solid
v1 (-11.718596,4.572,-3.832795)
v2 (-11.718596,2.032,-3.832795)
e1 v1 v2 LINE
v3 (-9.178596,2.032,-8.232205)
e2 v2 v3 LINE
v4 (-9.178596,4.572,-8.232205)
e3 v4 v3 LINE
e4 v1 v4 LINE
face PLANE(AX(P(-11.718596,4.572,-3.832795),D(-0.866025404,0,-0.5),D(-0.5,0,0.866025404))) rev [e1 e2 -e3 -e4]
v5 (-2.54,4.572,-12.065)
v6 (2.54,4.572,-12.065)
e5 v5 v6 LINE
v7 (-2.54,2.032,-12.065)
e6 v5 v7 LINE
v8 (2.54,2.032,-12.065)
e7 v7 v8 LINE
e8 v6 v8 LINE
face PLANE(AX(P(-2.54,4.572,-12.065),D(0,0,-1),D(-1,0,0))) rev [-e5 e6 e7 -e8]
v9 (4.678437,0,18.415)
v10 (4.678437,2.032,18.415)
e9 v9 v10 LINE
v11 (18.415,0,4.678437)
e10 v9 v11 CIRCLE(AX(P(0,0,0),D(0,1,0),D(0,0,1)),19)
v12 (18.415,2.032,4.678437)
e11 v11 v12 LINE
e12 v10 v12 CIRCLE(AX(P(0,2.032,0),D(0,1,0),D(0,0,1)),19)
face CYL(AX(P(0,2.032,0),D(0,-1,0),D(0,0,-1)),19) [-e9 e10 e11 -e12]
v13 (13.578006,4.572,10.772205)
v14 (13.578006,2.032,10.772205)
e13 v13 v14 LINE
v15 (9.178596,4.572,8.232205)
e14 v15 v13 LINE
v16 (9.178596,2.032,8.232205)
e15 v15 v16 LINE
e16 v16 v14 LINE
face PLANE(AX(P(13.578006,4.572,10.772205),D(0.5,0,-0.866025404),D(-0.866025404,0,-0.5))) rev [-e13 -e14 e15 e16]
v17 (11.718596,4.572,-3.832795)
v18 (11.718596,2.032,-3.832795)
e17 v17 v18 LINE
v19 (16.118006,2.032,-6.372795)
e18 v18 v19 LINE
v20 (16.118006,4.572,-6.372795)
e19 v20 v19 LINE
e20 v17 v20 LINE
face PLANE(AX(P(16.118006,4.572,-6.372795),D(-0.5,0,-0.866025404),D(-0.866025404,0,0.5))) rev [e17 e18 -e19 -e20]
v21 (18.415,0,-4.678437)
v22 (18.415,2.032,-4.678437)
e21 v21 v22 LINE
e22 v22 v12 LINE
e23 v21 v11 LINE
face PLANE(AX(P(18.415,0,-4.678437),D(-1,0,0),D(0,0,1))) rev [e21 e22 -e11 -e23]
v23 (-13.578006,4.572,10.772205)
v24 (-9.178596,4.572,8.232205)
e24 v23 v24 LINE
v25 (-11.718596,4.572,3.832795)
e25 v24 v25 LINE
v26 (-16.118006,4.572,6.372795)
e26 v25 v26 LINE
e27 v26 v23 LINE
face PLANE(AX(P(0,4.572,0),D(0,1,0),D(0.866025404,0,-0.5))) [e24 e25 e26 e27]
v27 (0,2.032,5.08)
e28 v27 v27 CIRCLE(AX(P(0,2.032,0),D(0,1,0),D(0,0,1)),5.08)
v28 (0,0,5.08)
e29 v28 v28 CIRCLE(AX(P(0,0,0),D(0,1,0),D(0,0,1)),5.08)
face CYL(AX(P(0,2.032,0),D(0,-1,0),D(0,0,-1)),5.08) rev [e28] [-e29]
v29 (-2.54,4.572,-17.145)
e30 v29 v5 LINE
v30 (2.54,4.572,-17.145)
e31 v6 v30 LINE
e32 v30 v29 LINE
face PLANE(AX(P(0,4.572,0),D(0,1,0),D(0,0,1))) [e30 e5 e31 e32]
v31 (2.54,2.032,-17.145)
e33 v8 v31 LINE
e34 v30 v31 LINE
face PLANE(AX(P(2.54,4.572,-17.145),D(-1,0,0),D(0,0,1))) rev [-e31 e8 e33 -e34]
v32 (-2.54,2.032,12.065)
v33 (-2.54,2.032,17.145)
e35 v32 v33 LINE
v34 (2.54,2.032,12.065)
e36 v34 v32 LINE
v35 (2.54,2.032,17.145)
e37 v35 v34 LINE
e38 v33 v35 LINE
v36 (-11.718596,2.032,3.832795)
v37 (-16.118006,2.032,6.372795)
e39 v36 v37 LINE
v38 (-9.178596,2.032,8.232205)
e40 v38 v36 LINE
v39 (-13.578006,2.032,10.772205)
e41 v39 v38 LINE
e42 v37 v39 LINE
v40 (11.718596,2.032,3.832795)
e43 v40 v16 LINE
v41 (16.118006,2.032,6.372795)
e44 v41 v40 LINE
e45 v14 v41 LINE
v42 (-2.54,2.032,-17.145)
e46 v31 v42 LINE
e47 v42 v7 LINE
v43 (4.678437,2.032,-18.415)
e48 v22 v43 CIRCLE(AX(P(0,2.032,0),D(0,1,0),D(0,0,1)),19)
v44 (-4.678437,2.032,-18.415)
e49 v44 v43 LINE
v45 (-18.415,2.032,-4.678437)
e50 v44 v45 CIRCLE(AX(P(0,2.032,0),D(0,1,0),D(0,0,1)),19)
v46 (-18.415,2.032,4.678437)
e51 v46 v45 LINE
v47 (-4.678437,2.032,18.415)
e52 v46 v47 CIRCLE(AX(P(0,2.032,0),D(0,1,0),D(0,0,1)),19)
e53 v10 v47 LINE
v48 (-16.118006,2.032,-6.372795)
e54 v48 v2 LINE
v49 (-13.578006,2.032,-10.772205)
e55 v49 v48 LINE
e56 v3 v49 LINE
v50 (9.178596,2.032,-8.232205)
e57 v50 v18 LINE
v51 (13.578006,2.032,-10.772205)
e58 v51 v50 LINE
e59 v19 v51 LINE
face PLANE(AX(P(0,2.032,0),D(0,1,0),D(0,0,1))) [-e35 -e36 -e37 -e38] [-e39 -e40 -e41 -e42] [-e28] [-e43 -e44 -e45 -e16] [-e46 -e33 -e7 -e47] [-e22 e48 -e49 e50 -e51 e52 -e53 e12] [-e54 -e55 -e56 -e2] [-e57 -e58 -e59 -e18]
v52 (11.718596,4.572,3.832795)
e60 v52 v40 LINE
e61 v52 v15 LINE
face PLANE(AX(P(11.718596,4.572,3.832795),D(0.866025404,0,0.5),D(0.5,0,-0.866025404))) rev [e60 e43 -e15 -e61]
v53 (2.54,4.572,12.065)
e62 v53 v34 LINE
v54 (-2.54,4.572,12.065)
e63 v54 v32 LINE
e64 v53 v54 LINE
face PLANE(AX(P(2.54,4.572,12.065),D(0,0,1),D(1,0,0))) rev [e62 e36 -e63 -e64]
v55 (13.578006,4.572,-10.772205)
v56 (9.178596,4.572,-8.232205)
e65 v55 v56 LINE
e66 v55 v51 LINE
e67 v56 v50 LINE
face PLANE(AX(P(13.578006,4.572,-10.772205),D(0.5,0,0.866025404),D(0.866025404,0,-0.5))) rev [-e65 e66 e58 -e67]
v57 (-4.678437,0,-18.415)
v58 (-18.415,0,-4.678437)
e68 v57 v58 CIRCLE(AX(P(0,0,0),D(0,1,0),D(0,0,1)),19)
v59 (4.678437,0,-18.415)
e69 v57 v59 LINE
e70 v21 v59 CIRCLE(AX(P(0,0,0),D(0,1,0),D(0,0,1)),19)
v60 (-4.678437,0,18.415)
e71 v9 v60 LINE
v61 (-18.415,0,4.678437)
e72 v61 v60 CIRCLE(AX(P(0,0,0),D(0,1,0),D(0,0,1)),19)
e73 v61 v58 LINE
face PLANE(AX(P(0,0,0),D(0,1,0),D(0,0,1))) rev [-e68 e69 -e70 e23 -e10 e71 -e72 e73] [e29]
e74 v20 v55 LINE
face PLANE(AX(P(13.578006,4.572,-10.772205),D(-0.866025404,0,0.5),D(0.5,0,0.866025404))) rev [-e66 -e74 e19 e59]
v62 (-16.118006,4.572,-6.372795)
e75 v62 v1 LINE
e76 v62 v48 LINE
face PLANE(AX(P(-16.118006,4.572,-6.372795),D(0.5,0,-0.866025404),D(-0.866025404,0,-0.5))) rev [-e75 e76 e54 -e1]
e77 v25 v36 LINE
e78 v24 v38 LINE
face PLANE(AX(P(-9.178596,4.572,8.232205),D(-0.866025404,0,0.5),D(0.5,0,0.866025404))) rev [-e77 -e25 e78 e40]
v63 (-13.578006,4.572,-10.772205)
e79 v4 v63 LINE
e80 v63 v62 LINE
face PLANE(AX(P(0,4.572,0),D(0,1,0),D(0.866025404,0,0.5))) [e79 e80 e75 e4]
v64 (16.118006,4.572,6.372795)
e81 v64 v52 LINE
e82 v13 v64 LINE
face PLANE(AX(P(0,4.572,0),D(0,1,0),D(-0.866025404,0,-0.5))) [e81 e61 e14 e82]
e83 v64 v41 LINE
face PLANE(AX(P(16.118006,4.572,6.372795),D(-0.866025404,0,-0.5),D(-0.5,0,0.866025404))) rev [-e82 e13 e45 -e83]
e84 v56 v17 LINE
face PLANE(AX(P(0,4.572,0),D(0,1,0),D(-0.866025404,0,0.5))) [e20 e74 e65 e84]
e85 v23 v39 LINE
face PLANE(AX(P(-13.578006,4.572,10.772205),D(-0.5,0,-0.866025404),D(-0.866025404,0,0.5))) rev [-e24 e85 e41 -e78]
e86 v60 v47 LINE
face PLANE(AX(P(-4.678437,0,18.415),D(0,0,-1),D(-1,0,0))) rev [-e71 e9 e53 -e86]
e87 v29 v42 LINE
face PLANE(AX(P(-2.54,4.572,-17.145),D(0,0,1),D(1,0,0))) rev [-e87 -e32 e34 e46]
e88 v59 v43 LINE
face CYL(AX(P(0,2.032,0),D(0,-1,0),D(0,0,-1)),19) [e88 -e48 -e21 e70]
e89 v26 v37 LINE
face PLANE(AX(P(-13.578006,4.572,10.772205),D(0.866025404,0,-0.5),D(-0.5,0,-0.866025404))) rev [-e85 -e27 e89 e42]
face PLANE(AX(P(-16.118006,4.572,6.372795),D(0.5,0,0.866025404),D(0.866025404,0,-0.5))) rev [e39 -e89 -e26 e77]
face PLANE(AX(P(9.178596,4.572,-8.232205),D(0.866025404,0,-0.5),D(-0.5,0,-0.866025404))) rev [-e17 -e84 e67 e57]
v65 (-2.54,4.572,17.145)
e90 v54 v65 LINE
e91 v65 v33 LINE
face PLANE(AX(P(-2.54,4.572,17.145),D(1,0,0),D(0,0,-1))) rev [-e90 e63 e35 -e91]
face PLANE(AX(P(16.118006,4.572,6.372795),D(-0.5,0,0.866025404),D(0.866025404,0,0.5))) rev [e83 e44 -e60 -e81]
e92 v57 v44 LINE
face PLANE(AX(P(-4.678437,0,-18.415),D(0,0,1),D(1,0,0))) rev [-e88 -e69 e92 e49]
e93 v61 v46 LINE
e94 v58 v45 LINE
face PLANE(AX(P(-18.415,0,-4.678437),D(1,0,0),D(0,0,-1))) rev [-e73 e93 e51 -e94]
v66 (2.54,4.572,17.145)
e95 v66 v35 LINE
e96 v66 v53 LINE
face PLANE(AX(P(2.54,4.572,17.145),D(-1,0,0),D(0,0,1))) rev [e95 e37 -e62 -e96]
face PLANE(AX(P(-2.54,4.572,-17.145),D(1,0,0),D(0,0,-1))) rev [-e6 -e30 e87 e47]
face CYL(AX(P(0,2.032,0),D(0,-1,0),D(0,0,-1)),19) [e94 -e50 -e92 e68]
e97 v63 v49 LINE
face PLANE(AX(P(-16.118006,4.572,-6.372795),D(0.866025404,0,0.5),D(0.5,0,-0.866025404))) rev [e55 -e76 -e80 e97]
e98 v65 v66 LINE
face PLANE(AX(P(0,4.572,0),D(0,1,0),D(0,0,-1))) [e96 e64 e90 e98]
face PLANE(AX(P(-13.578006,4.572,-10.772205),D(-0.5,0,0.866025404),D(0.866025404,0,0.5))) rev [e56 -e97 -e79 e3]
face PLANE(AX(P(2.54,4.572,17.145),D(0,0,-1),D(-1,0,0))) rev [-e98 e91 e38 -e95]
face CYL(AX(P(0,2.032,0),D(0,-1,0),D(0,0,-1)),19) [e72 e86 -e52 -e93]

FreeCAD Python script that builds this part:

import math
import FreeCAD as App
import Part
import Sketcher
from FreeCAD import Vector
Q = App.Units.Quantity


def add_polygon(sketch, points):
    """Adds a closed chain of lines whose ends are joined by coincident constraints."""
    first, n = sketch.GeometryCount, len(points)
    for a, b in zip(points, points[1:] + points[:1]):
        sketch.addGeometry(Part.LineSegment(App.Vector(*a, 0), App.Vector(*b, 0)), False)
    for i in range(n):
        sketch.addConstraint(Sketcher.Constraint("Coincident", first + i, 2, first + (i + 1) % n, 1))

doc = App.newDocument("Part")
body = doc.addObject("PartDesign::Body", "Body")

sketch1 = body.newObject("Sketcher::SketchObject", "Sketch")
sketch1.AttachmentSupport = (doc.getObject("XZ_Plane"), [""])
sketch1.MapMode = "FlatFace"
sketch1.addGeometry(Part.Circle(Vector(0, 0, 0), Vector(0, 0, 1), 19), False)
sketch1.addGeometry(Part.Circle(Vector(0, 0, 0), Vector(0, 0, 1), 5.08), False)
sketch1.addConstraint(Sketcher.Constraint("Coincident", 0, 3, -1, 1))
sketch1.addConstraint(Sketcher.Constraint("Coincident", 1, 3, -1, 1))
sketch1.addConstraint(Sketcher.Constraint("Diameter", 1, Q("0.4 in")))
sketch1.addConstraint(Sketcher.Constraint("Diameter", 0, Q("38 mm")))
pad1 = body.newObject("PartDesign::Pad", "Pad")
pad1.Profile = sketch1
pad1.Length = Q("0.08 in")
pad1.Reversed = True

sketch2 = body.newObject("Sketcher::SketchObject", "Sketch001")
sketch2.AttachmentSupport = (doc.getObject("XZ_Plane"), [""])
sketch2.MapMode = "FlatFace"
sketch2.AttachmentOffset = App.Placement(Vector(0, 0, -0.08 * 25.4), App.Rotation())
sketch2.addGeometry(Part.LineSegment(Vector(-4.678437, -18.415, 0), Vector(4.678437, -18.415, 0)), False)
sketch2.addGeometry(Part.ArcOfCircle(Part.Circle(Vector(0, 0, 0), Vector(0, 0, 1), 19), math.radians(-104.254744), math.radians(-75.745256)), False)
sketch2.addGeometry(Part.LineSegment(Vector(4.678437, 18.415, 0), Vector(-4.678437, 18.415, 0)), False)
sketch2.addGeometry(Part.ArcOfCircle(Part.Circle(Vector(0, 0, 0), Vector(0, 0, 1), 19), math.radians(75.745256), math.radians(104.254744)), False)
sketch2.addConstraint(Sketcher.Constraint("Coincident", 0, 1, 1, 1))
sketch2.addConstraint(Sketcher.Constraint("Coincident", 1, 2, 0, 2))
sketch2.addConstraint(Sketcher.Constraint("Coincident", 2, 1, 3, 1))
sketch2.addConstraint(Sketcher.Constraint("Coincident", 3, 2, 2, 2))
sketch2.addConstraint(Sketcher.Constraint("Horizontal", 0))
sketch2.addConstraint(Sketcher.Constraint("Horizontal", 2))
sketch2.addConstraint(Sketcher.Constraint("Coincident", 1, 3, -1, 1))
sketch2.addConstraint(Sketcher.Constraint("Coincident", 3, 3, -1, 1))
sketch2.addConstraint(Sketcher.Constraint("Equal", 1, 3))
sketch2.addConstraint(Sketcher.Constraint("Vertical", 1, 2, 2, 1))
sketch2.addConstraint(Sketcher.Constraint("Radius", 1, Q("19 mm")))
sketch2.addConstraint(Sketcher.Constraint("DistanceY", 1, 2, 2, 1, Q("1.45 in")))
pocket1 = body.newObject("PartDesign::Pocket", "Pocket")
pocket1.Profile = sketch2
pocket1.Type = "ThroughAll"
pocket1.Reversed = True
doc.recompute()

polarpattern = body.newObject("PartDesign::PolarPattern", "PolarPattern")
polarpattern.Originals = [pocket1]
polarpattern.Axis = (doc.getObject("Y_Axis"), [""])
polarpattern.Angle = 90
polarpattern.Occurrences = 2
polarpattern.Reversed = True
body.Tip = polarpattern

sketch3 = body.newObject("Sketcher::SketchObject", "Sketch002")
sketch3.AttachmentSupport = (doc.getObject("XZ_Plane"), [""])
sketch3.MapMode = "FlatFace"
sketch3.AttachmentOffset = App.Placement(Vector(0, 0, -0.08 * 25.4), App.Rotation())
add_polygon(sketch3, [(-2.54, -17.145), (-2.54, -12.065), (2.54, -12.065), (2.54, -17.145)])
sketch3.addConstraint(Sketcher.Constraint("Vertical", 0))
sketch3.addConstraint(Sketcher.Constraint("Horizontal", 1))
sketch3.addConstraint(Sketcher.Constraint("Vertical", 2))
sketch3.addConstraint(Sketcher.Constraint("Horizontal", 3))
sketch3.addConstraint(Sketcher.Constraint("Equal", 3, 0))
sketch3.addConstraint(Sketcher.Constraint("DistanceX", 1, 1, 1, 2, Q("0.2 in")))
sketch3.addConstraint(Sketcher.Constraint("DistanceX", 0, 2, -1, 1, Q("0.1 in")))
sketch3.addConstraint(Sketcher.Constraint("DistanceY", 0, 2, -1, 1, Q("0.475 in")))
pad2 = body.newObject("PartDesign::Pad", "Pad001")
pad2.Profile = sketch3
pad2.Length = Q("0.1 in")
pad2.Reversed = True
doc.recompute()

polarpattern2 = body.newObject("PartDesign::PolarPattern", "PolarPattern001")
polarpattern2.Originals = [pad2]
polarpattern2.Axis = (doc.getObject("Y_Axis"), [""])
polarpattern2.Angle = 360
polarpattern2.Occurrences = 6
body.Tip = polarpattern2

doc.recompute()
